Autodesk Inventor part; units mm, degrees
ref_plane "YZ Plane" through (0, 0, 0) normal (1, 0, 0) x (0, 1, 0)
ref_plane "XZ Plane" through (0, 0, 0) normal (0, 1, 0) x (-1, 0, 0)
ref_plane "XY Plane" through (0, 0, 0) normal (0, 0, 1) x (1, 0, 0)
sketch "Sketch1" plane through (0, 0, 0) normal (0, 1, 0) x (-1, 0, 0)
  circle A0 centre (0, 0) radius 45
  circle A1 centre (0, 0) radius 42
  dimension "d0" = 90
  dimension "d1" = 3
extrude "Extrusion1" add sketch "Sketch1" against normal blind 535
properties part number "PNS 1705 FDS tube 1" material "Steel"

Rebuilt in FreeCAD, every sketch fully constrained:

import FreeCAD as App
import Part
import Sketcher
from FreeCAD import Vector
Q = App.Units.Quantity

doc = App.newDocument("Part")
params = doc.addObject("Spreadsheet::Sheet", "Params")
for row, (alias, value) in enumerate([
    ("sketch1_diameter", "90 mm"),
    ("sketch1_diameter2", "84 mm"),
    ("pad1_length", "535 mm"),
], start=1):
    params.set(f"A{row}", alias)
    params.set(f"B{row}", "=" + value)
    params.setAlias(f"B{row}", alias)

body = doc.addObject("PartDesign::Body", "Body")

sketch1 = body.newObject("Sketcher::SketchObject", "Sketch")
sketch1.AttachmentSupport = (doc.getObject("XZ_Plane"), [""])
sketch1.MapMode = "FlatFace"
sketch1.addGeometry(Part.Circle(Vector(0, 0, 0), Vector(0, 0, 1), 45), False)
sketch1.addGeometry(Part.Circle(Vector(0, 0, 0), Vector(0, 0, 1), 42), False)
sketch1.addConstraint(Sketcher.Constraint("Coincident", 0, 3, -1, 1))
sketch1.addConstraint(Sketcher.Constraint("Coincident", 1, 3, -1, 1))
sketch1.addConstraint(Sketcher.Constraint("Diameter", 0, Q("90 mm")))
sketch1.addConstraint(Sketcher.Constraint("Diameter", 1, Q("84 mm")))
sketch1.setExpression("Constraints[2]", "Params.sketch1_diameter")
sketch1.setExpression("Constraints[3]", "Params.sketch1_diameter2")
pad1 = body.newObject("PartDesign::Pad", "Pad")
pad1.Profile = sketch1
pad1.setExpression("Length", "Params.pad1_length")

doc.recompute()
